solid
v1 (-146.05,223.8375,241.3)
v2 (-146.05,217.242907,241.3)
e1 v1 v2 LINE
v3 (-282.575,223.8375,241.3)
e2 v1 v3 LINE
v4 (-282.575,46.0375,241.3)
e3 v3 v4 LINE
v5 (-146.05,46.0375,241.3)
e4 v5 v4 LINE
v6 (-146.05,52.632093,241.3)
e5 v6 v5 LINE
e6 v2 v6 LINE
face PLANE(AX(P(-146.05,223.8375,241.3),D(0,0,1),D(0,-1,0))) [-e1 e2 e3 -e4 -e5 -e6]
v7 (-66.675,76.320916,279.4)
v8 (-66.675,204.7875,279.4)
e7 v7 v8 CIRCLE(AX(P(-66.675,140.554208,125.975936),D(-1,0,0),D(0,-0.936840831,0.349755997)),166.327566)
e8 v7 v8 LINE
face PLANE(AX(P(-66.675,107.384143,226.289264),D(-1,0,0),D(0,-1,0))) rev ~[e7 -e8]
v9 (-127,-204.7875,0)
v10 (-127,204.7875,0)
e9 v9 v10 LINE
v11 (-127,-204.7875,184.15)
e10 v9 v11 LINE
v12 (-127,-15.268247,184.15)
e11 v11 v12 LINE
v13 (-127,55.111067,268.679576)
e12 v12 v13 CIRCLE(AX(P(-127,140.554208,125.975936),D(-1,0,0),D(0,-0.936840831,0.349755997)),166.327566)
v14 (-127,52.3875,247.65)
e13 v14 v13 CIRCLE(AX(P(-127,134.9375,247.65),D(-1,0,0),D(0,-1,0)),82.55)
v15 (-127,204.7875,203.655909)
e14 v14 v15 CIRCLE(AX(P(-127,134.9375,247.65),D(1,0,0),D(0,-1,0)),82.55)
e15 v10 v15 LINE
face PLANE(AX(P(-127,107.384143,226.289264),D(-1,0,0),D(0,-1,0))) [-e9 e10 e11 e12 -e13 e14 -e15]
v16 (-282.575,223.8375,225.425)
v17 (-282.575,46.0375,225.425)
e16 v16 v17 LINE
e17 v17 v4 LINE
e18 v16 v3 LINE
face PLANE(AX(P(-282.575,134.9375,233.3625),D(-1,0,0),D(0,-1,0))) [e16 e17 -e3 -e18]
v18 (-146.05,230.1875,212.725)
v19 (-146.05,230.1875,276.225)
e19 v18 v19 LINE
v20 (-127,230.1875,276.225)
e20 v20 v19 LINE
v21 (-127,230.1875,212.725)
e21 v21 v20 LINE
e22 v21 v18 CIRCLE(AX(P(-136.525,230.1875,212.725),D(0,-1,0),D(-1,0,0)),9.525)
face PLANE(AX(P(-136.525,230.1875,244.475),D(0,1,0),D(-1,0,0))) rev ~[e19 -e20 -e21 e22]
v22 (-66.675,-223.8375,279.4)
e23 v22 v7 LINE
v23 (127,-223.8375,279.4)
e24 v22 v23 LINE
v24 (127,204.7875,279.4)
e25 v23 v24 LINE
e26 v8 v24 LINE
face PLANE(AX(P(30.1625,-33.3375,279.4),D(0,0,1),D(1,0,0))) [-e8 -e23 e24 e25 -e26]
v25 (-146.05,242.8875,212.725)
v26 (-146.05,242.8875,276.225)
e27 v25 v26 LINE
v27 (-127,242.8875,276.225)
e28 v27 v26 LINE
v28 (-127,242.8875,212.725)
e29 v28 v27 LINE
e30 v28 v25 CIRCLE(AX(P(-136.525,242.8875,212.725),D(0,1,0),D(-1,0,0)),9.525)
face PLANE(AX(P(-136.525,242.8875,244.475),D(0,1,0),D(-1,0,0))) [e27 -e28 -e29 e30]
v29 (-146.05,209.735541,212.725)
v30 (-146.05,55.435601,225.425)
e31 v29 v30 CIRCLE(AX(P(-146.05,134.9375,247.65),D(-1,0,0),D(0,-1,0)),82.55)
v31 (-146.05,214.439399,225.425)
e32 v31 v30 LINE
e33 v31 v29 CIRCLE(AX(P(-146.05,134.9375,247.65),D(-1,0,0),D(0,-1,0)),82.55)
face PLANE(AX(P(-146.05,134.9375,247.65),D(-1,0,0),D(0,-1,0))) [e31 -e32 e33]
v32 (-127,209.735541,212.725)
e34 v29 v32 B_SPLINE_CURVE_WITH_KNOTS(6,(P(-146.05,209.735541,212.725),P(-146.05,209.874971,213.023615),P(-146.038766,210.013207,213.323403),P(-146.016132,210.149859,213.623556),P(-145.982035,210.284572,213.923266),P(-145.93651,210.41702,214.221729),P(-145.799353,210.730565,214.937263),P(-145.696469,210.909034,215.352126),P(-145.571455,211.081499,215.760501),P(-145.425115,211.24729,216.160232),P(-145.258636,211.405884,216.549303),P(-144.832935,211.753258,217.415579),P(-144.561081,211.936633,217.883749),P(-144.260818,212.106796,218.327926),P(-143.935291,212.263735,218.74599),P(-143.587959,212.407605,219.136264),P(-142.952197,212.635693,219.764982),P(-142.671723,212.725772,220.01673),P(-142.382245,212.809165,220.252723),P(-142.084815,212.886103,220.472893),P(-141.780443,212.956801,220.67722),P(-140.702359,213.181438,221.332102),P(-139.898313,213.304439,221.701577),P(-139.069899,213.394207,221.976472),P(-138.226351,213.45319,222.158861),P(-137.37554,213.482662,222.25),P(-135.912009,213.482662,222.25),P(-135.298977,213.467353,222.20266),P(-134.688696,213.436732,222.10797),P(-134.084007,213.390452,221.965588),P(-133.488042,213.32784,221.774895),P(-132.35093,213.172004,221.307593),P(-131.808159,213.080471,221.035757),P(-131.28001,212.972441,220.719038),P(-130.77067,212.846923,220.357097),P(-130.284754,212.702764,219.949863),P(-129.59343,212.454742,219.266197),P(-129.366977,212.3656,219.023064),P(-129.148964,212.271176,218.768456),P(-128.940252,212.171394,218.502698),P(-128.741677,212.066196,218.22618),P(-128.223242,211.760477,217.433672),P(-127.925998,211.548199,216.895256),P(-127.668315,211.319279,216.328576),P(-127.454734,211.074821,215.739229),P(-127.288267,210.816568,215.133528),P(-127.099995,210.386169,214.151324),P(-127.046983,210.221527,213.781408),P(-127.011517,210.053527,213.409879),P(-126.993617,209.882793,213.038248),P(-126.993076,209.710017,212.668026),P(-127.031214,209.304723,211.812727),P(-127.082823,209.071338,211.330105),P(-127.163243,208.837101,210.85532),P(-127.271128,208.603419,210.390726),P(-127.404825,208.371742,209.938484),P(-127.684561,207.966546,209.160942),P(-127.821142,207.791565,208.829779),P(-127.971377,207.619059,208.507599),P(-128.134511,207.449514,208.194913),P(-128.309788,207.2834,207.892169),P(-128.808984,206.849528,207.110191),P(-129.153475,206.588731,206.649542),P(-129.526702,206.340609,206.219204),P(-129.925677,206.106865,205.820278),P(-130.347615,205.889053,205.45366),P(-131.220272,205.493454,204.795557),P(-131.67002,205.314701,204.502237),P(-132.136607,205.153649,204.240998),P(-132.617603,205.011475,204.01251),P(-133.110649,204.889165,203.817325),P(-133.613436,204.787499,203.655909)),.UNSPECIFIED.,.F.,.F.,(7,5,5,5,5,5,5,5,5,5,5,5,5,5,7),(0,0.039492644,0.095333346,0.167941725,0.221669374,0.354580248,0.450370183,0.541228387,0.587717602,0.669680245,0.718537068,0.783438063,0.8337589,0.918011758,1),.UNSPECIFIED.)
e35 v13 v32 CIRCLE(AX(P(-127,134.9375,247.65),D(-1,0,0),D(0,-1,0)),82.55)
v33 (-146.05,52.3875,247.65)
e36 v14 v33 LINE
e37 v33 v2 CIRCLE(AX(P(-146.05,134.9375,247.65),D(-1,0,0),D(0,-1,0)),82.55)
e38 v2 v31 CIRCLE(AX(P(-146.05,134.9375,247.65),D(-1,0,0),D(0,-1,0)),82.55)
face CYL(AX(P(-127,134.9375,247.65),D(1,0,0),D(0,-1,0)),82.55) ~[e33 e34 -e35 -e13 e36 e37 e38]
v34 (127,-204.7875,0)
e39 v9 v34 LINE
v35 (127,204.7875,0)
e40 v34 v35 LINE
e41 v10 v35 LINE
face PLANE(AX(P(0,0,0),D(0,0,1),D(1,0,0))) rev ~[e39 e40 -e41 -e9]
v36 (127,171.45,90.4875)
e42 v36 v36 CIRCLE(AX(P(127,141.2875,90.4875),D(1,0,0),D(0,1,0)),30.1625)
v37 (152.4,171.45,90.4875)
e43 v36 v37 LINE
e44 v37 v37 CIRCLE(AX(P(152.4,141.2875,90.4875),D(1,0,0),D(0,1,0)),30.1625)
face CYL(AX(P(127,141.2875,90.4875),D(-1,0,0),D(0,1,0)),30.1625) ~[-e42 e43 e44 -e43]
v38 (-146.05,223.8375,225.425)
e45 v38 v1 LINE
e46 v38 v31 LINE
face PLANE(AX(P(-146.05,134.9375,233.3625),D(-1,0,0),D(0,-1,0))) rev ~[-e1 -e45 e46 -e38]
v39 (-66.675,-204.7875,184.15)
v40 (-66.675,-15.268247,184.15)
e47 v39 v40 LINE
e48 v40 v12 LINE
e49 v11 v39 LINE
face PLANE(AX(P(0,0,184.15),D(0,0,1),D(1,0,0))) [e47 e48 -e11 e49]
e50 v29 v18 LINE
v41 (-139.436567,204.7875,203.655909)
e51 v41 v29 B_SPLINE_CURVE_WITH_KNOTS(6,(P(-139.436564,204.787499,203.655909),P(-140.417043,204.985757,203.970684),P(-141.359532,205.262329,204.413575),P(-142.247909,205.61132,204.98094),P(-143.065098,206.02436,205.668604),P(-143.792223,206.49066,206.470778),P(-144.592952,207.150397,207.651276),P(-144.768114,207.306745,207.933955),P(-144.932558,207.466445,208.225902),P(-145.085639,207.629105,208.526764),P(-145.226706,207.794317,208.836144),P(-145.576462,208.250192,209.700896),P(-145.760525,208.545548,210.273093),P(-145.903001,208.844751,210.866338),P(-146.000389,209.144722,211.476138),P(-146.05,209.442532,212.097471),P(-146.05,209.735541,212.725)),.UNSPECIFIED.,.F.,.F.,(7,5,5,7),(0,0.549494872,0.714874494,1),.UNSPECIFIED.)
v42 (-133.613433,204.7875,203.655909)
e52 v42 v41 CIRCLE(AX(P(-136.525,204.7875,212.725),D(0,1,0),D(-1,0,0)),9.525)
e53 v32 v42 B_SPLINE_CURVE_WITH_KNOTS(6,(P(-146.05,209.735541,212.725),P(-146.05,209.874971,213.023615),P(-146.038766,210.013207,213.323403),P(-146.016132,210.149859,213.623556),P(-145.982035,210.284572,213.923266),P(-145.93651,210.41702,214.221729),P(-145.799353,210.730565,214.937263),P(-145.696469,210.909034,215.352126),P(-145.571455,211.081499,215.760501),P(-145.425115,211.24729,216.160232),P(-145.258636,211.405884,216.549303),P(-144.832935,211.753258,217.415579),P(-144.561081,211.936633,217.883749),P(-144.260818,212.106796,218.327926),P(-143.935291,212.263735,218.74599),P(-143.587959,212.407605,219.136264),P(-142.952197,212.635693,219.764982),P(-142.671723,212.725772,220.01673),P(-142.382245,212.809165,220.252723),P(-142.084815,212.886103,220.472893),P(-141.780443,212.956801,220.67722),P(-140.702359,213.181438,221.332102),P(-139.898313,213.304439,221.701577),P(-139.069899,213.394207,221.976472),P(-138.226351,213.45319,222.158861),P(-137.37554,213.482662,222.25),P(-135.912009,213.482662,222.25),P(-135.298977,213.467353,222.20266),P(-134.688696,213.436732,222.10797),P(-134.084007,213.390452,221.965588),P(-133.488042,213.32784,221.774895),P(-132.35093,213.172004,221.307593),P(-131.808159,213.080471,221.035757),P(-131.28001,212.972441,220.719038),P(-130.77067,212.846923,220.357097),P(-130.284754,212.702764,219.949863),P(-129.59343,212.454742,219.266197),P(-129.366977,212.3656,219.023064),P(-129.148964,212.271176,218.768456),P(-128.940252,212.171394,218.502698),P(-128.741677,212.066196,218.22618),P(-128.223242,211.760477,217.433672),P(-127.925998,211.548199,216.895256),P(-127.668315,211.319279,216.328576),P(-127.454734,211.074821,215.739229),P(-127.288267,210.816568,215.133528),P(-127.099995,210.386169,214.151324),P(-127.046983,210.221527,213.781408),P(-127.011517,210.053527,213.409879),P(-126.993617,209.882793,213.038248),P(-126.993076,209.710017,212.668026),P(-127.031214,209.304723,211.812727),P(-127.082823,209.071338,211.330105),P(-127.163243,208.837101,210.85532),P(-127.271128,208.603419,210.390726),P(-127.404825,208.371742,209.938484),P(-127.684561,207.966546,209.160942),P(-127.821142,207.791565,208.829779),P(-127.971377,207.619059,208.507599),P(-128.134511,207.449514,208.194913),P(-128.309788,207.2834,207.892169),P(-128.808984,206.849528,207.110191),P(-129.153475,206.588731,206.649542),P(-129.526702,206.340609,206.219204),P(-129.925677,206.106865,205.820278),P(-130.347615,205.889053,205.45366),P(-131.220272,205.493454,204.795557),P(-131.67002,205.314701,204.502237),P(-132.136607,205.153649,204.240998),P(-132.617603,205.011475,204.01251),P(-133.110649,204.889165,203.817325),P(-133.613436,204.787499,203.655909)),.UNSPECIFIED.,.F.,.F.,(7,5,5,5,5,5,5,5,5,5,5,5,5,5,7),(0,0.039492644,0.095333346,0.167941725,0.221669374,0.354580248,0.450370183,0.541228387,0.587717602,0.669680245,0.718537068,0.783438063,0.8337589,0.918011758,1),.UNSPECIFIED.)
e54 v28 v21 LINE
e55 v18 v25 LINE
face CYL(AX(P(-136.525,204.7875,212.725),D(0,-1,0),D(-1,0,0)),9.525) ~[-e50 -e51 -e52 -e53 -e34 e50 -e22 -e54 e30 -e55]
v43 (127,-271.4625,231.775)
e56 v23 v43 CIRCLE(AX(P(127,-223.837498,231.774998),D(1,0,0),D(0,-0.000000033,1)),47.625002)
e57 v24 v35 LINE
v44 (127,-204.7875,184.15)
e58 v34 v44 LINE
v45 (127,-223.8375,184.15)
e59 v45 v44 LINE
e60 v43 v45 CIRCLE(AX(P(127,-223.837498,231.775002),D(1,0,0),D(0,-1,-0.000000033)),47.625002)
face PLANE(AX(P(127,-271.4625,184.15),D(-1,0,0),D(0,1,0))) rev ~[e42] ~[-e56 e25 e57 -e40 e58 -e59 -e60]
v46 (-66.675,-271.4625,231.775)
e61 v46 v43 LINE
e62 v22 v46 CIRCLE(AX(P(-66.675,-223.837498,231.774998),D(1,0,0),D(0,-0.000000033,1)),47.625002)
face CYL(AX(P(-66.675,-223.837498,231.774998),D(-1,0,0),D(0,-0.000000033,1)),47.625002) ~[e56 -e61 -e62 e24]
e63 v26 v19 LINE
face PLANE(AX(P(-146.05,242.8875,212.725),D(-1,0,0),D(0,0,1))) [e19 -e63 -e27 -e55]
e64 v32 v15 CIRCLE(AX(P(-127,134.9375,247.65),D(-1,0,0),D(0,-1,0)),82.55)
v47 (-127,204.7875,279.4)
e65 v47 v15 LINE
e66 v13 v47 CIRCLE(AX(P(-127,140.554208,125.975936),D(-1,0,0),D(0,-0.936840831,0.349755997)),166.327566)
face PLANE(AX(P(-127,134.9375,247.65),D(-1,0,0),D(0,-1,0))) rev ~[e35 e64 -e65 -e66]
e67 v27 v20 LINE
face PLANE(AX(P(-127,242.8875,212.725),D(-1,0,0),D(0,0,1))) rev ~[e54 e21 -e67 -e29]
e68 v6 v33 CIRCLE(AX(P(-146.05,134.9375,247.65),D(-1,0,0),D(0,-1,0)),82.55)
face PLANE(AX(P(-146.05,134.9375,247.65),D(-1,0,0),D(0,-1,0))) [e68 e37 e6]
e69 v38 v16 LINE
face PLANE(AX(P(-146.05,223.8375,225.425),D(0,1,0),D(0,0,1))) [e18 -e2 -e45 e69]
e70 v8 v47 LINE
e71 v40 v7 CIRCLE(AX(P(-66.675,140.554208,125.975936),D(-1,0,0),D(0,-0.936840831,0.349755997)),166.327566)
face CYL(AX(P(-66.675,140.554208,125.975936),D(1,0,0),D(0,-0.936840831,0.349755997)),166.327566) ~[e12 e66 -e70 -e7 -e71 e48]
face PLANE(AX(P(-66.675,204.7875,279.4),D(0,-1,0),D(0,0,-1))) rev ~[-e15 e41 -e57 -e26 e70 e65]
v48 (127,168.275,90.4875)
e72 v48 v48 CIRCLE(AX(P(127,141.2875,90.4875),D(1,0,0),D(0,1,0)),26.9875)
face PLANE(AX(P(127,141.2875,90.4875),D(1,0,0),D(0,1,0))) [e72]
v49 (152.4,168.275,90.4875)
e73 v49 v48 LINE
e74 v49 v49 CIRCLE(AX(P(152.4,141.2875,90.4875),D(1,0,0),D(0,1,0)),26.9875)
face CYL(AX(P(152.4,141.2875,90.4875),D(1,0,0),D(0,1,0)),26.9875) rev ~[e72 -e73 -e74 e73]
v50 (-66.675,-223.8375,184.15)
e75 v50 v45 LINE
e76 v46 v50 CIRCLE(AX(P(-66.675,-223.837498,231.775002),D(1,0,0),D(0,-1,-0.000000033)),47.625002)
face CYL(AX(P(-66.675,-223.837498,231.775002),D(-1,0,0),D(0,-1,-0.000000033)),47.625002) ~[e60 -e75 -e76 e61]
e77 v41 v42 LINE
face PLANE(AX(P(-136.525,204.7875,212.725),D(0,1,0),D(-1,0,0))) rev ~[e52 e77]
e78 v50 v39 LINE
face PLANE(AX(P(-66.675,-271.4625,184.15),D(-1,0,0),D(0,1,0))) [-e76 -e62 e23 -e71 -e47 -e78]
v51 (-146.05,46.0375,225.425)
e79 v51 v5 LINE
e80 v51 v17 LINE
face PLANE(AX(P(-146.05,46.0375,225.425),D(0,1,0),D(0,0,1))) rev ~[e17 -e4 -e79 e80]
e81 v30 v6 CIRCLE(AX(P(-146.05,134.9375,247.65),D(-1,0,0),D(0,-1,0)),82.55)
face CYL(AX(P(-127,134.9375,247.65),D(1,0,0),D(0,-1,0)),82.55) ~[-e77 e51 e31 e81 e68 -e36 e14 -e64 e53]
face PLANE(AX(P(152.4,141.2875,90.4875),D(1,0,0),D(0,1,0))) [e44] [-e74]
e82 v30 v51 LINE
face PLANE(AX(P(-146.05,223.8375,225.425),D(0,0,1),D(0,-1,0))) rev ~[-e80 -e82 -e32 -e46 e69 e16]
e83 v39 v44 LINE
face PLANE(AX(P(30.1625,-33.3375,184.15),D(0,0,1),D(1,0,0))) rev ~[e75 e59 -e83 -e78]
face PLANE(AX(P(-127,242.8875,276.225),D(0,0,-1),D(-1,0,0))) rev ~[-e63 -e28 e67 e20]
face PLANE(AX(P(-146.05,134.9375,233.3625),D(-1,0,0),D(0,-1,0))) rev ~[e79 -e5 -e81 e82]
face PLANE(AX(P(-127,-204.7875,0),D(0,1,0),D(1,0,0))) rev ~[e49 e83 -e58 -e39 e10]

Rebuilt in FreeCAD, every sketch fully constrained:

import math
import FreeCAD as App
import Part
import Sketcher

V = App.Vector
Q = App.Units.Quantity

doc = App.newDocument("Part")
body = doc.addObject("PartDesign::Body", "Body")

# Sketch on XY plane
sketch1 = body.newObject("Sketcher::SketchObject", "Sketch")
sketch1.AttachmentSupport = (doc.getObject("XY_Plane"), [""])
sketch1.MapMode = "FlatFace"
sketch1.addGeometry([
    Part.LineSegment(V(-127, 205, 0), V(-127, -205, 0)),
    Part.LineSegment(V(-127, -205, 0), V(127, -205, 0)),
    Part.LineSegment(V(127, -205, 0), V(127, 205, 0)),
    Part.LineSegment(V(127, 205, 0), V(-127, 205, 0)),
], False)
sketch1.addConstraint([
    Sketcher.Constraint("Coincident", 0, 2, 1, 1),
    Sketcher.Constraint("Coincident", 1, 2, 2, 1),
    Sketcher.Constraint("Coincident", 2, 2, 3, 1),
    Sketcher.Constraint("Coincident", 3, 2, 0, 1),
    Sketcher.Constraint("Vertical", 0),
    Sketcher.Constraint("Horizontal", 1),
    Sketcher.Constraint("Vertical", 2),
    Sketcher.Constraint("Horizontal", 3),
    Sketcher.Constraint("Symmetric", 0, 2, 2, 2, -1, 1),
    Sketcher.Constraint("DistanceX", 1, 1, 1, 2, Q("10 in")),
    Sketcher.Constraint("DistanceY", 0, 2, 0, 1, Q("16.125 in")),
])
pad1 = body.newObject("PartDesign::Pad", "Pad")
pad1.Profile = sketch1
pad1.Length = Q("7.25 in")

# Sketch on XY plane
sketch2 = body.newObject("Sketcher::SketchObject", "Sketch001")
sketch2.AttachmentSupport = (doc.getObject("XY_Plane"), [""])
sketch2.MapMode = "FlatFace"
sketch2.AttachmentOffset = App.Placement(V(0, 0, 7.25 * 25.4), App.Rotation())
sketch2.addGeometry([
    Part.LineSegment(V(-67, 205, 0), V(-67, -271, 0)),
    Part.LineSegment(V(-67, -271, 0), V(127, -271, 0)),
    Part.LineSegment(V(127, -271, 0), V(127, 205, 0)),
    Part.LineSegment(V(127, 205, 0), V(-67, 205, 0)),
], False)
sketch2.addConstraint([
    Sketcher.Constraint("Coincident", 0, 2, 1, 1),
    Sketcher.Constraint("Coincident", 1, 2, 2, 1),
    Sketcher.Constraint("Coincident", 2, 2, 3, 1),
    Sketcher.Constraint("Coincident", 3, 2, 0, 1),
    Sketcher.Constraint("Vertical", 0),
    Sketcher.Constraint("Horizontal", 1),
    Sketcher.Constraint("Vertical", 2),
    Sketcher.Constraint("Horizontal", 3),
    Sketcher.Constraint("DistanceX", -1, 1, 1, 2, Q("5 in")),
    Sketcher.Constraint("DistanceY", 0, 2, 0, 1, Q("18.75 in")),
    Sketcher.Constraint("DistanceX", 1, 1, 1, 2, Q("7.625 in")),
    Sketcher.Constraint("DistanceY", 0, 2, -1, 1, Q("10.6875 in")),
])
pad2 = body.newObject("PartDesign::Pad", "Pad001")
pad2.Profile = sketch2
pad2.Length = Q("3.75 in")

# Sketch on YZ plane
sketch3 = body.newObject("Sketcher::SketchObject", "Sketch002")
sketch3.AttachmentSupport = (doc.getObject("YZ_Plane"), [""])
sketch3.MapMode = "FlatFace"
sketch3.AttachmentOffset = App.Placement(V(0, 0, 5 * 25.4), App.Rotation())
sketch3.addGeometry(Part.Circle(V(141, 90, 0), V(0, 0, 1), 30), False)
sketch3.addConstraint([
    Sketcher.Constraint("Diameter", 0, Q("2.375 in")),
    Sketcher.Constraint("DistanceX", -1, 1, 0, 3, Q("5.5625 in")),
    Sketcher.Constraint("DistanceY", -1, 1, 0, 3, Q("3.5625 in")),
])
pad3 = body.newObject("PartDesign::Pad", "Pad002")
pad3.Profile = sketch3
pad3.Length = Q("1 in")

# Sketch on YZ plane
sketch4 = body.newObject("Sketcher::SketchObject", "Sketch003")
sketch4.AttachmentSupport = (doc.getObject("YZ_Plane"), [""])
sketch4.MapMode = "FlatFace"
sketch4.AttachmentOffset = App.Placement(V(0, 0, 6 * 25.4), App.Rotation())
sketch4.addGeometry(Part.Circle(V(141, 90, 0), V(0, 0, 1), 27), False)
sketch4.addConstraint([
    Sketcher.Constraint("Diameter", 0, Q("2.125 in")),
    Sketcher.Constraint("DistanceX", -1, 1, 0, 3, Q("5.5625 in")),
    Sketcher.Constraint("DistanceY", -1, 1, 0, 3, Q("3.5625 in")),
])
pocket1 = body.newObject("PartDesign::Pocket", "Pocket")
pocket1.Profile = sketch4
pocket1.Length = Q("1 in")

# Sketch on YZ plane
sketch5 = body.newObject("Sketcher::SketchObject", "Sketch004")
sketch5.AttachmentSupport = (doc.getObject("YZ_Plane"), [""])
sketch5.MapMode = "FlatFace"
sketch5.AttachmentOffset = App.Placement(V(0, 0, -5 * 25.4), App.Rotation())
sketch5.addGeometry(Part.Circle(V(135, 248, 0), V(0, 0, 1), 83), False)
sketch5.addConstraint([
    Sketcher.Constraint("Diameter", 0, Q("6.5 in")),
    Sketcher.Constraint("DistanceY", -1, 1, 0, 3, Q("9.75 in")),
    Sketcher.Constraint("DistanceX", -1, 1, 0, 3, Q("5.3125 in")),
])
pad4 = body.newObject("PartDesign::Pad", "Pad003")
pad4.Profile = sketch5
pad4.Length = Q("0.75 in")
pad4.Reversed = True

# Sketch on YZ plane
sketch6 = body.newObject("Sketcher::SketchObject", "Sketch005")
sketch6.AttachmentSupport = (doc.getObject("YZ_Plane"), [""])
sketch6.MapMode = "FlatFace"
sketch6.AttachmentOffset = App.Placement(V(0, 0, -5.75 * 25.4), App.Rotation())
sketch6.addGeometry([
    Part.LineSegment(V(224, 241, 0), V(224, 225, 0)),
    Part.LineSegment(V(224, 225, 0), V(46, 225, 0)),
    Part.LineSegment(V(46, 225, 0), V(46, 241, 0)),
    Part.LineSegment(V(46, 241, 0), V(224, 241, 0)),
], False)
sketch6.addConstraint([
    Sketcher.Constraint("Coincident", 0, 2, 1, 1),
    Sketcher.Constraint("Coincident", 1, 2, 2, 1),
    Sketcher.Constraint("Coincident", 2, 2, 3, 1),
    Sketcher.Constraint("Coincident", 3, 2, 0, 1),
    Sketcher.Constraint("Vertical", 0),
    Sketcher.Constraint("Horizontal", 1),
    Sketcher.Constraint("Vertical", 2),
    Sketcher.Constraint("Horizontal", 3),
    Sketcher.Constraint("DistanceX", 1, 2, 1, 1, Q("7 in")),
    Sketcher.Constraint("DistanceY", -1, 1, 2, 2, Q("9.5 in")),
    Sketcher.Constraint("DistanceY", 0, 2, 0, 1, Q("0.625 in")),
    Sketcher.Constraint("DistanceX", -1, 1, 0, 2, Q("8.8125 in")),
])
pad5 = body.newObject("PartDesign::Pad", "Pad004")
pad5.Profile = sketch6
pad5.Length = Q("5.375 in")
pad5.Reversed = True

# Sketch on YZ plane
sketch7 = body.newObject("Sketcher::SketchObject", "Sketch006")
sketch7.AttachmentSupport = (doc.getObject("YZ_Plane"), [""])
sketch7.MapMode = "FlatFace"
sketch7.AttachmentOffset = App.Placement(V(0, 0, -2.625 * 25.4), App.Rotation())
sketch7.addGeometry([
    Part.LineSegment(V(205, 279, 0), V(205, 184, 0)),
    Part.LineSegment(V(205, 184, 0), V(-15, 184, 0)),
    Part.ArcOfCircle(Part.Circle(V(141, 126, 0), V(0, 0, 1), 166), math.radians(67), math.radians(160)),
], False)
sketch7.addConstraint([
    Sketcher.Constraint("Coincident", 0, 2, 1, 1),
    Sketcher.Constraint("Coincident", 1, 2, 2, 2),
    Sketcher.Constraint("Coincident", 2, 1, 0, 1),
    Sketcher.Constraint("Vertical", 0),
    Sketcher.Constraint("Horizontal", 1),
    Sketcher.Constraint("DistanceY", -1, 1, 2, 1, Q("11 in")),
    Sketcher.Constraint("DistanceY", 0, 2, 0, 1, Q("3.75 in")),
    Sketcher.Constraint("DistanceX", -1, 1, 0, 2, Q("8.0625 in")),
    Sketcher.Constraint("Radius", 2, 166.327566),
    Sketcher.Constraint("DistanceX", 1, 2, 1, 1, 220.055747),
])
pad6 = body.newObject("PartDesign::Pad", "Pad005")
pad6.Profile = sketch7
pad6.Length = Q("2.375 in")
pad6.Reversed = True

# Sketch on YZ plane
sketch8 = body.newObject("Sketcher::SketchObject", "Sketch007")
sketch8.AttachmentSupport = (doc.getObject("YZ_Plane"), [""])
sketch8.MapMode = "FlatFace"
sketch8.AttachmentOffset = App.Placement(V(0, 0, -2.625 * 25.4), App.Rotation())
sketch8.addGeometry([
    Part.ArcOfCircle(Part.Circle(V(-224, 232, 0), V(0, 0, 1), 48), math.radians(90), math.radians(180)),  # 0
    Part.LineSegment(V(-271, 232, 0), V(-271, 279, 0)),  # 1
    Part.LineSegment(V(-271, 279, 0), V(-224, 279, 0)),  # 2
    Part.ArcOfCircle(Part.Circle(V(-224, 232, 0), V(0, 0, 1), 48), math.radians(-180), math.radians(-90)),  # 3
    Part.LineSegment(V(-224, 184, 0), V(-271, 184, 0)),  # 4
    Part.LineSegment(V(-271, 184, 0), V(-271, 232, 0)),  # 5
], False)
sketch8.addConstraint([
    Sketcher.Constraint("Tangent", 0, 2, 1, 1),
    Sketcher.Constraint("Coincident", 1, 2, 2, 1),
    Sketcher.Constraint("Tangent", 2, 2, 0, 1),
    Sketcher.Constraint("Tangent", 3, 2, 4, 1),
    Sketcher.Constraint("Coincident", 4, 2, 5, 1),
    Sketcher.Constraint("Tangent", 5, 2, 3, 1),
    Sketcher.Constraint("Vertical", 1),
    Sketcher.Constraint("Horizontal", 2),
    Sketcher.Constraint("Horizontal", 4),
    Sketcher.Constraint("Vertical", 5),
    Sketcher.Constraint("Coincident", 3, 3, 0, 3),
    Sketcher.Constraint("Equal", 0, 3),
    Sketcher.Constraint("DistanceY", -1, 1, 1, 2, Q("11 in")),
    Sketcher.Constraint("Radius", 0, Q("1.8750001 in")),
    Sketcher.Constraint("DistanceX", 0, 3, -1, 1, Q("8.8124999 in")),
])
pocket2 = body.newObject("PartDesign::Pocket", "Pocket001")
pocket2.Profile = sketch8
pocket2.Type = "ThroughAll"
pocket2.Reversed = True

# Sketch on XZ plane
sketch9 = body.newObject("Sketcher::SketchObject", "Sketch008")
sketch9.AttachmentSupport = (doc.getObject("XZ_Plane"), [""])
sketch9.MapMode = "FlatFace"
sketch9.AttachmentOffset = App.Placement(V(0, 0, -8.0625 * 25.4), App.Rotation())
sketch9.addGeometry(Part.Circle(V(-137, 213, 0), V(0, 0, 1), 10), False)
sketch9.addConstraint([
    Sketcher.Constraint("Diameter", 0, Q("0.75 in")),
    Sketcher.Constraint("DistanceX", 0, 3, -1, 1, Q("5.375 in")),
    Sketcher.Constraint("DistanceY", -1, 1, 0, 3, Q("8.375 in")),
])
pad7 = body.newObject("PartDesign::Pad", "Pad006")
pad7.Profile = sketch9
pad7.Length = Q("1.5 in")
pad7.Reversed = True

# Sketch on XZ plane
sketch10 = body.newObject("Sketcher::SketchObject", "Sketch009")
sketch10.AttachmentSupport = (doc.getObject("XZ_Plane"), [""])
sketch10.MapMode = "FlatFace"
sketch10.AttachmentOffset = App.Placement(V(0, 0, -9.5625 * 25.4), App.Rotation())
sketch10.addGeometry([
    Part.LineSegment(V(-127, 276, 0), V(-127, 213, 0)),
    Part.LineSegment(V(-127, 213, 0), V(-146, 213, 0)),
    Part.LineSegment(V(-146, 213, 0), V(-146, 276, 0)),
    Part.LineSegment(V(-146, 276, 0), V(-127, 276, 0)),
], False)
sketch10.addConstraint([
    Sketcher.Constraint("Coincident", 0, 2, 1, 1),
    Sketcher.Constraint("Coincident", 1, 2, 2, 1),
    Sketcher.Constraint("Coincident", 2, 2, 3, 1),
    Sketcher.Constraint("Coincident", 3, 2, 0, 1),
    Sketcher.Constraint("Vertical", 0),
    Sketcher.Constraint("Horizontal", 1),
    Sketcher.Constraint("Vertical", 2),
    Sketcher.Constraint("Horizontal", 3),
    Sketcher.Constraint("DistanceY", 0, 2, 0, 1, Q("2.5 in")),
    Sketcher.Constraint("DistanceX", 0, 2, -1, 1, Q("5 in")),
    Sketcher.Constraint("DistanceX", 1, 2, 1, 1, Q("0.75 in")),
    Sketcher.Constraint("DistanceY", -1, 1, 0, 2, Q("8.375 in")),
])
pad8 = body.newObject("PartDesign::Pad", "Pad007")
pad8.Profile = sketch10
pad8.Length = Q("0.5 in")

doc.recompute()
